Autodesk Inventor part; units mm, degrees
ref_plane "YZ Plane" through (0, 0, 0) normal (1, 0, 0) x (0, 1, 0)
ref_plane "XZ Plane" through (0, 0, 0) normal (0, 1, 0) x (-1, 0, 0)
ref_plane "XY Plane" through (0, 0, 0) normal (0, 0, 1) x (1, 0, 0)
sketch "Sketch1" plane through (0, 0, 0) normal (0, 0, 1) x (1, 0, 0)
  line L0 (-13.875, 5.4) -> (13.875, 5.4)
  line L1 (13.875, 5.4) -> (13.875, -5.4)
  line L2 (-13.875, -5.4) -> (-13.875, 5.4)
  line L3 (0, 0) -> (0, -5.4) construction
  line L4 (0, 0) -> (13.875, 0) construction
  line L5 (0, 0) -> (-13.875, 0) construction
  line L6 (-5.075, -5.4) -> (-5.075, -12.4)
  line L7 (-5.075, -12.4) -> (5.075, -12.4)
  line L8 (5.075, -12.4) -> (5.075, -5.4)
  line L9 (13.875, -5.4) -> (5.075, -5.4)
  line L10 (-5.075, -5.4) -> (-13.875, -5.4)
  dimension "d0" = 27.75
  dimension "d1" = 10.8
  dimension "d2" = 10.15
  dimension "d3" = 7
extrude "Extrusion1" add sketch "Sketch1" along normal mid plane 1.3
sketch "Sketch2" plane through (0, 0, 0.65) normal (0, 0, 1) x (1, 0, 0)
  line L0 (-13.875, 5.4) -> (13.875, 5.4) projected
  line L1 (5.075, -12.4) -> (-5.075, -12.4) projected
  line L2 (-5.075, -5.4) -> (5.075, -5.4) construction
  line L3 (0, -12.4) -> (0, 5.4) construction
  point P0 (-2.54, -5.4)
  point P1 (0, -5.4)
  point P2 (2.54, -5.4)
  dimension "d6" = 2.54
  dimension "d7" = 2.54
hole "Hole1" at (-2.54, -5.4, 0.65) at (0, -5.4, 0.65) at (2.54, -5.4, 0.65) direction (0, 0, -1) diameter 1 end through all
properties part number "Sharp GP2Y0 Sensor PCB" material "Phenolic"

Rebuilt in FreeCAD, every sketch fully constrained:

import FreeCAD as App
import Part
import Sketcher
Q = App.Units.Quantity


def add_polygon(sketch, points):
    """Adds a closed chain of lines whose ends are joined by coincident constraints."""
    first, n = sketch.GeometryCount, len(points)
    for a, b in zip(points, points[1:] + points[:1]):
        sketch.addGeometry(Part.LineSegment(App.Vector(*a, 0), App.Vector(*b, 0)), False)
    for i in range(n):
        sketch.addConstraint(Sketcher.Constraint("Coincident", first + i, 2, first + (i + 1) % n, 1))

doc = App.newDocument("Part")
params = doc.addObject("Spreadsheet::Sheet", "Params")
for row, (alias, value) in enumerate([
    ("sketch1_height", "7 mm"),
    ("sketch1_height2", "10.8 mm"),
    ("sketch1_width", "27.75 mm"),
    ("sketch1_width2", "10.15 mm"),
    ("pad1_length", "1.3 mm"),
    ("sketch2_diameter", "1 mm"),
    ("hole_diameter", "1 mm"),
], start=1):
    params.set(f"A{row}", alias)
    params.set(f"B{row}", "=" + value)
    params.setAlias(f"B{row}", alias)

body = doc.addObject("PartDesign::Body", "Body")

sketch1 = body.newObject("Sketcher::SketchObject", "Sketch")
sketch1.AttachmentSupport = (doc.getObject("XY_Plane"), [""])
sketch1.MapMode = "FlatFace"
add_polygon(sketch1, [(14, 5), (-14, 5), (-14, -5), (-5, -5), (-5, -12), (5, -12), (5, -5), (14, -5)])
sketch1.addConstraint(Sketcher.Constraint("Horizontal", 0))
sketch1.addConstraint(Sketcher.Constraint("Vertical", 1))
sketch1.addConstraint(Sketcher.Constraint("Horizontal", 2))
sketch1.addConstraint(Sketcher.Constraint("Vertical", 3))
sketch1.addConstraint(Sketcher.Constraint("Horizontal", 4))
sketch1.addConstraint(Sketcher.Constraint("Vertical", 5))
sketch1.addConstraint(Sketcher.Constraint("Horizontal", 6))
sketch1.addConstraint(Sketcher.Constraint("Vertical", 7))
sketch1.addConstraint(Sketcher.Constraint("Symmetric", 0, 2, 6, 2, -1, 1))
sketch1.addConstraint(Sketcher.Constraint("Symmetric", 2, 2, 5, 2, -2))
sketch1.addConstraint(Sketcher.Constraint("DistanceY", 3, 2, 3, 1, Q("7 mm")))
sketch1.addConstraint(Sketcher.Constraint("DistanceY", 1, 2, 1, 1, Q("10.8 mm")))
sketch1.addConstraint(Sketcher.Constraint("DistanceX", 0, 2, 0, 1, Q("27.75 mm")))
sketch1.addConstraint(Sketcher.Constraint("DistanceX", 4, 1, 4, 2, Q("10.15 mm")))
sketch1.setExpression("Constraints[18]", "Params.sketch1_height")
sketch1.setExpression("Constraints[19]", "Params.sketch1_height2")
sketch1.setExpression("Constraints[20]", "Params.sketch1_width")
sketch1.setExpression("Constraints[21]", "Params.sketch1_width2")
pad1 = body.newObject("PartDesign::Pad", "Pad")
pad1.Profile = sketch1
pad1.setExpression("Length", "Params.pad1_length")
pad1.Midplane = True

sketch2 = body.newObject("Sketcher::SketchObject", "Sketch001")
sketch2.AttachmentSupport = (doc.getObject("XY_Plane"), [""])
sketch2.MapMode = "FlatFace"
sketch2.AttachmentOffset = App.Placement(App.Vector(0, 0, 0.65), App.Rotation())
sketch2.addGeometry(Part.Circle(App.Vector(-2.5, -5.4, 0), App.Vector(0, 0, 1), 0.5), False)
sketch2.addGeometry(Part.Circle(App.Vector(0, -5.4, 0), App.Vector(0, 0, 1), 0.5), False)
sketch2.addGeometry(Part.Circle(App.Vector(2.5, -5.4, 0), App.Vector(0, 0, 1), 0.5), False)
sketch2.addConstraint(Sketcher.Constraint("Equal", 0, 1))
sketch2.addConstraint(Sketcher.Constraint("Equal", 1, 2))
sketch2.addConstraint(Sketcher.Constraint("Symmetric", 0, 3, 2, 3, -2))
sketch2.addConstraint(Sketcher.Constraint("PointOnObject", 1, 3, -2))
sketch2.addConstraint(Sketcher.Constraint("Horizontal", 0, 3, 1, 3))
sketch2.addConstraint(Sketcher.Constraint("Diameter", 0, Q("1 mm")))
sketch2.addConstraint(Sketcher.Constraint("DistanceY", 0, 3, -1, 1, Q("5.4 mm")))
sketch2.addConstraint(Sketcher.Constraint("DistanceX", 0, 3, -1, 1, Q("2.54 mm")))
sketch2.setExpression("Constraints[5]", "Params.sketch2_diameter")
doc.recompute()
hole = body.newObject("PartDesign::Hole", "Hole")
hole.Profile = sketch2
hole.ThreadType = "None"
hole.setExpression("Diameter", "Params.hole_diameter")
hole.DepthType = "ThroughAll"

doc.recompute()
